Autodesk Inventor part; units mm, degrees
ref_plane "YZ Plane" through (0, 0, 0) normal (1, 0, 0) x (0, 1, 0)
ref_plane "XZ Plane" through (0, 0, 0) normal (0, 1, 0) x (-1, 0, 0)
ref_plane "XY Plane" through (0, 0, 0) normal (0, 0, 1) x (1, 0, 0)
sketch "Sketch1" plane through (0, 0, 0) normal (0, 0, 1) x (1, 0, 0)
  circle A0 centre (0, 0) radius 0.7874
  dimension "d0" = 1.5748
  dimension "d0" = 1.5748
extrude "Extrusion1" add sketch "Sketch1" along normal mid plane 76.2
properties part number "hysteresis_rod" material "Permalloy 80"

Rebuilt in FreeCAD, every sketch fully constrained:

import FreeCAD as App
import Part
import Sketcher
Q = App.Units.Quantity

doc = App.newDocument("Part")
body = doc.addObject("PartDesign::Body", "Body")

# Sketch on XY plane
sketch1 = body.newObject("Sketcher::SketchObject", "Sketch")
sketch1.AttachmentSupport = (doc.getObject("XY_Plane"), [""])
sketch1.MapMode = "FlatFace"
sketch1.addGeometry(Part.Circle(App.Vector(0, 0, 0), App.Vector(0, 0, 1), 0.8), False)
sketch1.addConstraint([
    Sketcher.Constraint("Coincident", 0, 3, -1, 1),
    Sketcher.Constraint("Diameter", 0, Q("0.062 in")),
])
pad1 = body.newObject("PartDesign::Pad", "Pad")
pad1.Profile = sketch1
pad1.Length = Q("3 in")
pad1.Midplane = True

doc.recompute()
